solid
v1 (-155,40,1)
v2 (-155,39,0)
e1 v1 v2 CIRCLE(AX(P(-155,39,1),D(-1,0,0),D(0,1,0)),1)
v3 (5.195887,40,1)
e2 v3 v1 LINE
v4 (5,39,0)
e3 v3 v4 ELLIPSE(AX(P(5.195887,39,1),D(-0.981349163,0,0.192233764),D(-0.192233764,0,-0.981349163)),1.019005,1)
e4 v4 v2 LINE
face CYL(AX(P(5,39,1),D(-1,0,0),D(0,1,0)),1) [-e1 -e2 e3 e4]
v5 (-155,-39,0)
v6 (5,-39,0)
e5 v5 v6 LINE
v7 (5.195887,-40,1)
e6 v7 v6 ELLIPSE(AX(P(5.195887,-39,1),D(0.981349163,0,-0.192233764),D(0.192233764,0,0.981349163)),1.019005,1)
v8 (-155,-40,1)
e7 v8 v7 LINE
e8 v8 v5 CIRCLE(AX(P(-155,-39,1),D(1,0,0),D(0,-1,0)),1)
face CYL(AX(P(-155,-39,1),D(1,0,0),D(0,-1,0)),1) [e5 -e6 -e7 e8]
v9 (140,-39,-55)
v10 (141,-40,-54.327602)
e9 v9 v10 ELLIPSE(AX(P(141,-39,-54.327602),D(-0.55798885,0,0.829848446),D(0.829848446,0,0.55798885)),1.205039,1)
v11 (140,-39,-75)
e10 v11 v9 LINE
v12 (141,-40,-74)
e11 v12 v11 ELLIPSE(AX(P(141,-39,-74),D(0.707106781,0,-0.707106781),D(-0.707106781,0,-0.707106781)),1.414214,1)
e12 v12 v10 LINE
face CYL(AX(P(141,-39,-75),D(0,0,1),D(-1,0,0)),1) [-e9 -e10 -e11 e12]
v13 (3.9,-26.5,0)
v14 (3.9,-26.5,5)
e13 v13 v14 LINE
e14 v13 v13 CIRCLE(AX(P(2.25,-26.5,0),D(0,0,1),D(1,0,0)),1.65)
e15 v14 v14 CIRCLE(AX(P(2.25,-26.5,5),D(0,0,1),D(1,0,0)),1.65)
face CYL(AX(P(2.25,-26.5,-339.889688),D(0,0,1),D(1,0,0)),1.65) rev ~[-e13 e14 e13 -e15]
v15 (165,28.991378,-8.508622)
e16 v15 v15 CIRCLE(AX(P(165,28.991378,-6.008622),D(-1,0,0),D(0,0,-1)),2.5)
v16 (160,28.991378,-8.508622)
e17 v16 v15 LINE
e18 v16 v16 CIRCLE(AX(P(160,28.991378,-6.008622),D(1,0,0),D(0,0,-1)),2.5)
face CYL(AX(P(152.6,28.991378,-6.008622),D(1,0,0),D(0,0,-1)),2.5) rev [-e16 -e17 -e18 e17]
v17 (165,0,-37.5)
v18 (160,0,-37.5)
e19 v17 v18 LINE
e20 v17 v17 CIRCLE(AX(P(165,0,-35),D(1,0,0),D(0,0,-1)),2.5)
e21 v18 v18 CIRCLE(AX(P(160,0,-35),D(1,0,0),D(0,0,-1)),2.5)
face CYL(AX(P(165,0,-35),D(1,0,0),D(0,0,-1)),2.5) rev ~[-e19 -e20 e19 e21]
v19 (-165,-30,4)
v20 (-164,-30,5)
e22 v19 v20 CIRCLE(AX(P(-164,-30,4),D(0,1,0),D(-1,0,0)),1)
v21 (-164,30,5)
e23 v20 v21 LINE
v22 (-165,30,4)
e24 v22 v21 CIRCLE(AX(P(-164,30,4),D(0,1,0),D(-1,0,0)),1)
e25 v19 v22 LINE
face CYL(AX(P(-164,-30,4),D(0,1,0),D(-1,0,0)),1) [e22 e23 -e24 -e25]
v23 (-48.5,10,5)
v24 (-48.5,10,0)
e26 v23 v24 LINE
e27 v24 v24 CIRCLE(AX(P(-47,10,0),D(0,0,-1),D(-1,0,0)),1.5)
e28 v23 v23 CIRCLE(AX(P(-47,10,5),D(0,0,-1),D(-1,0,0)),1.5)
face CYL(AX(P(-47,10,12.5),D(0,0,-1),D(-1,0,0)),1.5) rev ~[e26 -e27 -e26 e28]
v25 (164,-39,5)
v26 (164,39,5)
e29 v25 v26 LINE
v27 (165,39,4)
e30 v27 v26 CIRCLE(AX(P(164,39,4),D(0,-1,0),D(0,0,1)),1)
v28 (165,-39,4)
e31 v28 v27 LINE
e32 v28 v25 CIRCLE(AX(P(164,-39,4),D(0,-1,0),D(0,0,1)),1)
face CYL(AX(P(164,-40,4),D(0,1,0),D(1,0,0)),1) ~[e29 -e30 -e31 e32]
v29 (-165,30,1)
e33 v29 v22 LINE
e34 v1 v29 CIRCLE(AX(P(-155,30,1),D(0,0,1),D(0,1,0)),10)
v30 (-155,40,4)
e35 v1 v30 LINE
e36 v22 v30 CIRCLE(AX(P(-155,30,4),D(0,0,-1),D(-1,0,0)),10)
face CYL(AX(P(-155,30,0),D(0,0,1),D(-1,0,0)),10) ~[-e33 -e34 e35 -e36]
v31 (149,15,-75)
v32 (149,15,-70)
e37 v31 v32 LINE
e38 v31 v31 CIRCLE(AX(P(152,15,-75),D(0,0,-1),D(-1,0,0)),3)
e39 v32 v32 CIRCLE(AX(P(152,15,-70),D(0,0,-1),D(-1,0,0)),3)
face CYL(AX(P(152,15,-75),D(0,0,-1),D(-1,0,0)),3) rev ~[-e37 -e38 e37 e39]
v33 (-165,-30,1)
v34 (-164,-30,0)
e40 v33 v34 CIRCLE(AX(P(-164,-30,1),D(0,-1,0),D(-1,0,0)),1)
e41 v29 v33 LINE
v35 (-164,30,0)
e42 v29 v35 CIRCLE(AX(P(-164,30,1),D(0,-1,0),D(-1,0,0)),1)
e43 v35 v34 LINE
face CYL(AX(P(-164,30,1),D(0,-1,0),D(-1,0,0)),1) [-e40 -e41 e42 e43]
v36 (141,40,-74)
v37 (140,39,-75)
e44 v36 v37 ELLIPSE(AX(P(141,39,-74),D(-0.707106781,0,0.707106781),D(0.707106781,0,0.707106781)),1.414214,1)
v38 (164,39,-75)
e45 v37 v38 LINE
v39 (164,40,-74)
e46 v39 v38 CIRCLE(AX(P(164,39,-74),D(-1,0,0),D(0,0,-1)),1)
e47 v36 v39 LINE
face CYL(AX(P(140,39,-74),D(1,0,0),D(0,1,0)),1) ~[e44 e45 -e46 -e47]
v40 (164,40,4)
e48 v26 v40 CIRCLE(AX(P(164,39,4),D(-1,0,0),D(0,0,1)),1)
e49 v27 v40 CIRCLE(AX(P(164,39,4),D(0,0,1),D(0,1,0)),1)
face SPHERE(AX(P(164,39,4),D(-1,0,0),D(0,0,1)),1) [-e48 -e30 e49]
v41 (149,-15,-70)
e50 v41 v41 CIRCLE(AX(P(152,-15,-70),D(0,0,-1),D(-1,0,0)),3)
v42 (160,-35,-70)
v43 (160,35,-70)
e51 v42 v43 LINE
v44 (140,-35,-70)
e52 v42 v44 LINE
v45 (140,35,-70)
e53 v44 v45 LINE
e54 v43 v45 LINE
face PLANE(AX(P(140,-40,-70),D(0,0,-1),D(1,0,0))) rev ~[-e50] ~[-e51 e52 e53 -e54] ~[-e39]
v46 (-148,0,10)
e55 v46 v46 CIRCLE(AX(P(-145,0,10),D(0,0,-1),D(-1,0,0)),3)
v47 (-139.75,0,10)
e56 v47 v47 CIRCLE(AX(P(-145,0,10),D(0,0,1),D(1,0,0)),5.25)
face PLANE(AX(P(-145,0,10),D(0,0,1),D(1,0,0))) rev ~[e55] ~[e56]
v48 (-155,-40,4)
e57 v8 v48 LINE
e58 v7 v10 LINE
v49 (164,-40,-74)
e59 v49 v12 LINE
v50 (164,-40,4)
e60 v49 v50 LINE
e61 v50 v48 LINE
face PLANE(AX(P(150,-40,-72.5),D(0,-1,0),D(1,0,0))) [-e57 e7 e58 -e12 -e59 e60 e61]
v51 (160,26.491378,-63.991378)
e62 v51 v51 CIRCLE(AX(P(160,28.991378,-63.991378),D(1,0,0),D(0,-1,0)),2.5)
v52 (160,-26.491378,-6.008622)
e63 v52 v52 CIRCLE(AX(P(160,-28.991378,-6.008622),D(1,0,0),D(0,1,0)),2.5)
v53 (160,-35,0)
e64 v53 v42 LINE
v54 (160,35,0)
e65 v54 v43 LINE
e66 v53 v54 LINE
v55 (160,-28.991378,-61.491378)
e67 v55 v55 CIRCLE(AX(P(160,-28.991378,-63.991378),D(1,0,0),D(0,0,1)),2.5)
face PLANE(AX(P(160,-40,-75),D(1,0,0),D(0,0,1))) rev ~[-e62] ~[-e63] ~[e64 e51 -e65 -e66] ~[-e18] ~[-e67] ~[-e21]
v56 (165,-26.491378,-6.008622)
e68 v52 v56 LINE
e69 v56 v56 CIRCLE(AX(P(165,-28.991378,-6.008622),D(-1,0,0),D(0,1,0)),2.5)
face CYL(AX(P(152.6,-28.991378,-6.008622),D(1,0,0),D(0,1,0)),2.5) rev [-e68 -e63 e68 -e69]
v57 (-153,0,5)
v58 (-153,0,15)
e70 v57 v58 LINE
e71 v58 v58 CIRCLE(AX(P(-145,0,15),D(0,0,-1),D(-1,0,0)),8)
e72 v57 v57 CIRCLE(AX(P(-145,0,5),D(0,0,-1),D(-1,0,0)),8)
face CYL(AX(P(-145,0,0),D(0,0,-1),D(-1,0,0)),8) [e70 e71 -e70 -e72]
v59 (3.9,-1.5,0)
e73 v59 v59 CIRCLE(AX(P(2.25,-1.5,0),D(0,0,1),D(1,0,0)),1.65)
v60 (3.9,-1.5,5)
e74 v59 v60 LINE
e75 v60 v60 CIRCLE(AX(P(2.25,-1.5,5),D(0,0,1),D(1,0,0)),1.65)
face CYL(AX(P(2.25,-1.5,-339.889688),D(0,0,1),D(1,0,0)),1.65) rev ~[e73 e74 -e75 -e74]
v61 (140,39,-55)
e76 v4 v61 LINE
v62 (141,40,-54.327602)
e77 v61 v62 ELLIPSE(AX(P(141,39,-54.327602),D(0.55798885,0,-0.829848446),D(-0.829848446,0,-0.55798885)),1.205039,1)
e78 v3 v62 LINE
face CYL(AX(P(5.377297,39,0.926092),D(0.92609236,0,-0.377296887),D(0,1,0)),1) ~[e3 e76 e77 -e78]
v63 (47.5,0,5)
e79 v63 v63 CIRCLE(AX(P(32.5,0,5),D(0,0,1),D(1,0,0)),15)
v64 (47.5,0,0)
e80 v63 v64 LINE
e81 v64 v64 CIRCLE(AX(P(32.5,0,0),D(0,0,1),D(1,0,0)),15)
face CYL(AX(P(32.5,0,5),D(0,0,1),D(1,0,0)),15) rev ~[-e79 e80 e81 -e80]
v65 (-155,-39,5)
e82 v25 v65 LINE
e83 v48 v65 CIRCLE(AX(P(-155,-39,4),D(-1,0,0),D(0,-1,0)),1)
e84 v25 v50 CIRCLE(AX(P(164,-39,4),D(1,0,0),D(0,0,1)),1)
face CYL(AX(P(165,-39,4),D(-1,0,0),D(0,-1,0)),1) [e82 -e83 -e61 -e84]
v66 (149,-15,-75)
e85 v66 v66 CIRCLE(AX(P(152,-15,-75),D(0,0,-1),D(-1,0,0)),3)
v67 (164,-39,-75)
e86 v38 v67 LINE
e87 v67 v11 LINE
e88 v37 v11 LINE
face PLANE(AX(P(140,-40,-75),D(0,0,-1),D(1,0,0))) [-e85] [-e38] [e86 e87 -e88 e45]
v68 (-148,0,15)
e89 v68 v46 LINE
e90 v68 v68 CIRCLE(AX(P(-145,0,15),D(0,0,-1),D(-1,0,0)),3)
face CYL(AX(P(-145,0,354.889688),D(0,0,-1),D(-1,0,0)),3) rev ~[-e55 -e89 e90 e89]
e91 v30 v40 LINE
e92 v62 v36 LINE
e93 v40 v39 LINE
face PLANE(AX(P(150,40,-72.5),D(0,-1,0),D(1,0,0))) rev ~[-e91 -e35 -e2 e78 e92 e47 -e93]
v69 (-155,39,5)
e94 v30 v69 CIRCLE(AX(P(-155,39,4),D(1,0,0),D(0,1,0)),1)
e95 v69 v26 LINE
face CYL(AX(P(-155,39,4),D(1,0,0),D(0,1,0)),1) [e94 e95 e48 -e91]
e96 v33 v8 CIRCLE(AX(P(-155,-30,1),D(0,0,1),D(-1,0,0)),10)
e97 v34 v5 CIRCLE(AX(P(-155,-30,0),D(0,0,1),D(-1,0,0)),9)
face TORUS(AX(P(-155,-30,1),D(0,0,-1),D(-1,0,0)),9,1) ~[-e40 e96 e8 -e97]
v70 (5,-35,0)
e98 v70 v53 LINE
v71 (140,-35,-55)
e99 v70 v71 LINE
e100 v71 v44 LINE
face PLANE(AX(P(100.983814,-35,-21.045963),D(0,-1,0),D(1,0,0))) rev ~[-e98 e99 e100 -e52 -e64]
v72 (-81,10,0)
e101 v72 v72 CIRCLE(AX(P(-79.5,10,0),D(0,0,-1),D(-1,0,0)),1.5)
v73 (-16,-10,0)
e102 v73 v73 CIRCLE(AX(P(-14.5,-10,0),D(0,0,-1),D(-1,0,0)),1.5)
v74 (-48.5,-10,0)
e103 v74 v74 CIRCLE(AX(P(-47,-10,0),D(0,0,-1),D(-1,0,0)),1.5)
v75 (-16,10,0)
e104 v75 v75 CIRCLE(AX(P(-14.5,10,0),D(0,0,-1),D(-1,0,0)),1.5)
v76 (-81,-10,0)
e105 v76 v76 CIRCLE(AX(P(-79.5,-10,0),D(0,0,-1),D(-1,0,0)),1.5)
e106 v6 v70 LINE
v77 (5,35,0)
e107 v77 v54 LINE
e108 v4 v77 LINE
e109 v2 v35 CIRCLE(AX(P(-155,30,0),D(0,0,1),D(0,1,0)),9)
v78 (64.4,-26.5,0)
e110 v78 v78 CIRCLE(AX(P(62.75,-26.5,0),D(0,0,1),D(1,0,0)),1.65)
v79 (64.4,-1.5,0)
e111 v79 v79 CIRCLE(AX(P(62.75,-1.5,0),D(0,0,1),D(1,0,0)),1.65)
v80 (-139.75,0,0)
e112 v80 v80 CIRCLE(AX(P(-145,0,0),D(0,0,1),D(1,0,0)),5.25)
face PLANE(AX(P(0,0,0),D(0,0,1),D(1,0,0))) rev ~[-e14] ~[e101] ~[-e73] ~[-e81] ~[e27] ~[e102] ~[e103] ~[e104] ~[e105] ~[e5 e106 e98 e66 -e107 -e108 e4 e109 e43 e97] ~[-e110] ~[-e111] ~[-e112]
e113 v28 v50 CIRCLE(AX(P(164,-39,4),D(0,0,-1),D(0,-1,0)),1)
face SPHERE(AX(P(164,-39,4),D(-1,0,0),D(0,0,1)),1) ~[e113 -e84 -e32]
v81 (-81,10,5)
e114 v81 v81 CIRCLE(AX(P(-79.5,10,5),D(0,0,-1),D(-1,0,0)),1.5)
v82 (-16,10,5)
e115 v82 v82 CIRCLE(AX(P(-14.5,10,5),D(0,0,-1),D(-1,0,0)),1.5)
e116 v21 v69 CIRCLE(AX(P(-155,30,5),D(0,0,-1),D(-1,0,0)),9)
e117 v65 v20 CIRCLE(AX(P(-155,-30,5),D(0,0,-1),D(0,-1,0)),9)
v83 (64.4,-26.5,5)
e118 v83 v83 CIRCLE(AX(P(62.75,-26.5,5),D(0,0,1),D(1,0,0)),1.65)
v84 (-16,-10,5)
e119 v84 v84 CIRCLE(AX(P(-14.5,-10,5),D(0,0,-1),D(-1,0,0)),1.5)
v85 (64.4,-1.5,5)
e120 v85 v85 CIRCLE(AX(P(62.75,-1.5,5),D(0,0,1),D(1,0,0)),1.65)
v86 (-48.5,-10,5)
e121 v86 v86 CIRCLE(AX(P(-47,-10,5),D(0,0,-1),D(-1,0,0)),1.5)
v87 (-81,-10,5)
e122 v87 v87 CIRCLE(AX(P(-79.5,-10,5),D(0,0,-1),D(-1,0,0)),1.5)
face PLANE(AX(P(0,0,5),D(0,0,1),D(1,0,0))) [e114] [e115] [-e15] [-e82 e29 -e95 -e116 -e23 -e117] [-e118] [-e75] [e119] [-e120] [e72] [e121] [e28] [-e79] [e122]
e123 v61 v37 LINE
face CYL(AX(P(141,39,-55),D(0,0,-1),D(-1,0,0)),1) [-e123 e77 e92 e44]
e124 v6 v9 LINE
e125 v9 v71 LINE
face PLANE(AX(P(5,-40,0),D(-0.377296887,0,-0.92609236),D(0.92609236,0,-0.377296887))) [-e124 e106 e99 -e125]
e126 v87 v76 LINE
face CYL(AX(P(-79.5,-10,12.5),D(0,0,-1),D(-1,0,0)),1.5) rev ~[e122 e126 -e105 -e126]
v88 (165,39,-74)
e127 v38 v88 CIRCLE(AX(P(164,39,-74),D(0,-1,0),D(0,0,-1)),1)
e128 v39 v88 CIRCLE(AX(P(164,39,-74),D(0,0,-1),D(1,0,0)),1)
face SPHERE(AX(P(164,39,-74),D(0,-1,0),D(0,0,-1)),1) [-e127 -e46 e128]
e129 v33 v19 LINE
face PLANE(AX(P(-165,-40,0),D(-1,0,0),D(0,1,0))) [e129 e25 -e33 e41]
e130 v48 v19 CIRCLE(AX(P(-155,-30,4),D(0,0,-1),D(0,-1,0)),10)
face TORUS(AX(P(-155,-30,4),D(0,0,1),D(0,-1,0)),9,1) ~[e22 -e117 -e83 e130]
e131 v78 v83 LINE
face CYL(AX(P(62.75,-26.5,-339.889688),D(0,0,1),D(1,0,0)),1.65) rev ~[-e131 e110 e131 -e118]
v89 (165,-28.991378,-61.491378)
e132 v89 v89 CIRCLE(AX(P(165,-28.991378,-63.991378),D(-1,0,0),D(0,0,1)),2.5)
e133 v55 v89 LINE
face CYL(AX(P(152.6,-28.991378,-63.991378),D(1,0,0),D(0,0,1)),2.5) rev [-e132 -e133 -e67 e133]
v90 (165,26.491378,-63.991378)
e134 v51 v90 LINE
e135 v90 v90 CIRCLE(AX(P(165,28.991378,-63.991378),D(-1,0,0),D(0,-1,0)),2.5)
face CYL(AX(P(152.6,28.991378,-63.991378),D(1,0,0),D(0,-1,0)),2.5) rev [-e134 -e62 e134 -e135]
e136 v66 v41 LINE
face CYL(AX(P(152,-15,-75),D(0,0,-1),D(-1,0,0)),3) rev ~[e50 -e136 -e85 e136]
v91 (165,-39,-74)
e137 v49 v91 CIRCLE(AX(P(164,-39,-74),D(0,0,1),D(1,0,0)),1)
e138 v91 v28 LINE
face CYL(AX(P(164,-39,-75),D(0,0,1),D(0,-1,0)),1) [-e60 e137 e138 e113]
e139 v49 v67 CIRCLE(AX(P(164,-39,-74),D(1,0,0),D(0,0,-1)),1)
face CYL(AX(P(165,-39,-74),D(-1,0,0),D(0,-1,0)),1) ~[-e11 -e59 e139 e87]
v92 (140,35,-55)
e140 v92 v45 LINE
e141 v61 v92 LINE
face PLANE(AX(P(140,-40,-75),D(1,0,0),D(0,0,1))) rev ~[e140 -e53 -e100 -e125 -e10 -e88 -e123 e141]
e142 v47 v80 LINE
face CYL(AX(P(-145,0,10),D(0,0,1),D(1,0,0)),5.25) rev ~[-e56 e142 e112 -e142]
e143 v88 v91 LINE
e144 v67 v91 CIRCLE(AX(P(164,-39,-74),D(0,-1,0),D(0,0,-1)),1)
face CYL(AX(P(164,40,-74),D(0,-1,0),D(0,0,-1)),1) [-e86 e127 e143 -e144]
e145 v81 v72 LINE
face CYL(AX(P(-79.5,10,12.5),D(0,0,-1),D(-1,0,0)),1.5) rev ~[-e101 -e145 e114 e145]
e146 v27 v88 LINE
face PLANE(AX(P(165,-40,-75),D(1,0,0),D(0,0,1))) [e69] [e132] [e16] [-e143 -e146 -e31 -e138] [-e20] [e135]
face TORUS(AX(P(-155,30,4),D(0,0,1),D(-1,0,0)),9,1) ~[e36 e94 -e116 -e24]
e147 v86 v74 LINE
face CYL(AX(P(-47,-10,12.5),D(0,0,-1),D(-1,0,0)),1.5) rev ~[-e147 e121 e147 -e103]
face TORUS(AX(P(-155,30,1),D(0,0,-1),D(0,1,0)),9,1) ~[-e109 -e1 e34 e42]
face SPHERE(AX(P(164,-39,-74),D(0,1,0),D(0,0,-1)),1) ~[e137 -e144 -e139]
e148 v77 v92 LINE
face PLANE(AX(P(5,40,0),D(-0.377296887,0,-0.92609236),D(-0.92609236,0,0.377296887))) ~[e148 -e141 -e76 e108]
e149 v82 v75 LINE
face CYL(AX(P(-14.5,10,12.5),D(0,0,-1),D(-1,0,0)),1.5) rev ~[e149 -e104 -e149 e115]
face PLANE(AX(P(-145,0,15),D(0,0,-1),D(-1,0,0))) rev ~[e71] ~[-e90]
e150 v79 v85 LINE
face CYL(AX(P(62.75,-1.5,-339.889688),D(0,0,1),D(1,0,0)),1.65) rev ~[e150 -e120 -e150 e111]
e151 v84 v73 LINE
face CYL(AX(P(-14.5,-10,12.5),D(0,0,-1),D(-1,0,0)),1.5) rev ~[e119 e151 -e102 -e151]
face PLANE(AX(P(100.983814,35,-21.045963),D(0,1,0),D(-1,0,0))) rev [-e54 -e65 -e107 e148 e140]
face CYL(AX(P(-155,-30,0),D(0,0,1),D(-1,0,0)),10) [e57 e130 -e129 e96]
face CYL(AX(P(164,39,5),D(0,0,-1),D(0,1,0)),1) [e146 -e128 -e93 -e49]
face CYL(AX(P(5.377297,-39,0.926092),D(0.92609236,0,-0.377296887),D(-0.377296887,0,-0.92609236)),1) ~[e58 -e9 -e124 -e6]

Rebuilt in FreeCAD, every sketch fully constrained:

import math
import FreeCAD as App
import Part
import Sketcher

V = App.Vector
Q = App.Units.Quantity


def edges_at(feature, points):
    """Names of the edges that pass closest to the given points."""
    edges = feature.Shape.Edges
    near = lambda p: min(range(len(edges)), key=lambda i: edges[i].distToShape(Part.Vertex(*p))[0])
    return sorted({f"Edge{near(p) + 1}" for p in points})


def add_polygon(sketch, points):
    """Adds a closed chain of lines whose ends are joined by coincident constraints."""
    first, n = sketch.GeometryCount, len(points)
    for a, b in zip(points, points[1:] + points[:1]):
        sketch.addGeometry(Part.LineSegment(App.Vector(*a, 0), App.Vector(*b, 0)), False)
    for i in range(n):
        sketch.addConstraint(Sketcher.Constraint("Coincident", first + i, 2, first + (i + 1) % n, 1))

doc = App.newDocument("Part")
body = doc.addObject("PartDesign::Body", "Body")

# Sketch on XY plane
sketch1 = body.newObject("Sketcher::SketchObject", "Sketch")
sketch1.AttachmentSupport = (doc.getObject("XY_Plane"), [""])
sketch1.MapMode = "FlatFace"
add_polygon(sketch1, [(-165, 40), (-165, -40), (165, -40), (165, 40)])  # lines 0-3
sketch1.addConstraint(Sketcher.Constraint("Vertical", 0))
sketch1.addConstraint(Sketcher.Constraint("Horizontal", 1))
sketch1.addConstraint(Sketcher.Constraint("Vertical", 2))
sketch1.addConstraint(Sketcher.Constraint("Horizontal", 3))
sketch1.addConstraint(Sketcher.Constraint("Symmetric", 0, 2, 2, 2, -1, 1))
sketch1.addConstraint(Sketcher.Constraint("DistanceX", 1, 1, 1, 2, Q("330 mm")))
sketch1.addConstraint(Sketcher.Constraint("DistanceY", 0, 2, 0, 1, Q("80 mm")))
pad1 = body.newObject("PartDesign::Pad", "Pad")
pad1.Profile = sketch1
pad1.Length = 5

# Sketch on XY plane
sketch2 = body.newObject("Sketcher::SketchObject", "Sketch001")
sketch2.AttachmentSupport = (doc.getObject("XY_Plane"), [""])
sketch2.MapMode = "FlatFace"
sketch2.AttachmentOffset = App.Placement(V(0, 0, 5), App.Rotation())
sketch2.addGeometry(Part.Circle(V(-145, 0, 0), V(0, 0, 1), 5), False)
sketch2.addConstraint(Sketcher.Constraint("PointOnObject", 0, 3, -1))
sketch2.addConstraint(Sketcher.Constraint("Diameter", 0, Q("10 mm")))
sketch2.addConstraint(Sketcher.Constraint("DistanceX", 0, 3, -1, 1, Q("145 mm")))
pocket1 = body.newObject("PartDesign::Pocket", "Pocket")
pocket1.Profile = sketch2
pocket1.Length = 5

# Sketch on XY plane
sketch3 = body.newObject("Sketcher::SketchObject", "Sketch002")
sketch3.AttachmentSupport = (doc.getObject("XY_Plane"), [""])
sketch3.MapMode = "FlatFace"
sketch3.AttachmentOffset = App.Placement(V(0, 0, 5), App.Rotation())
sketch3.addGeometry(Part.Circle(V(-45, 0, 0), V(0, 0, 1), 4), False)
sketch3.addConstraint(Sketcher.Constraint("PointOnObject", 0, 3, -1))
sketch3.addConstraint(Sketcher.Constraint("Diameter", 0, Q("8 mm")))
sketch3.addConstraint(Sketcher.Constraint("DistanceX", 0, 3, -1, 1, Q("45 mm")))
pocket2 = body.newObject("PartDesign::Pocket", "Pocket001")
pocket2.Profile = sketch3
pocket2.Length = 10

# Sketch on XY plane
sketch4 = body.newObject("Sketcher::SketchObject", "Sketch003")
sketch4.AttachmentSupport = (doc.getObject("XY_Plane"), [""])
sketch4.MapMode = "FlatFace"
sketch4.AttachmentOffset = App.Placement(V(0, 0, 5), App.Rotation())
add_polygon(sketch4, [(-91, 10), (-91, -10), (-3, -10), (-3, 10)])  # lines 0-3
sketch4.addConstraint(Sketcher.Constraint("Vertical", 0))
sketch4.addConstraint(Sketcher.Constraint("Horizontal", 1))
sketch4.addConstraint(Sketcher.Constraint("Vertical", 2))
sketch4.addConstraint(Sketcher.Constraint("Horizontal", 3))
sketch4.addConstraint(Sketcher.Constraint("DistanceX", 1, 1, 1, 2, Q("88 mm")))
sketch4.addConstraint(Sketcher.Constraint("DistanceY", 0, 2, 0, 1, Q("20 mm")))
sketch4.addConstraint(Sketcher.Constraint("DistanceX", 0, 2, -1, 1, Q("91 mm")))
sketch4.addConstraint(Sketcher.Constraint("DistanceY", 0, 2, -1, 1, Q("10 mm")))
pad2 = body.newObject("PartDesign::Pad", "Pad001")
pad2.Profile = sketch4
pad2.Length = 10

# Sketch on XY plane
sketch5 = body.newObject("Sketcher::SketchObject", "Sketch004")
sketch5.AttachmentSupport = (doc.getObject("XY_Plane"), [""])
sketch5.MapMode = "FlatFace"
sketch5.AttachmentOffset = App.Placement(V(0, 0, 5), App.Rotation())
sketch5.addGeometry(Part.Circle(V(32, 0, 0), V(0, 0, 1), 15), False)
sketch5.addConstraint(Sketcher.Constraint("PointOnObject", 0, 3, -1))
sketch5.addConstraint(Sketcher.Constraint("Diameter", 0, Q("30 mm")))
sketch5.addConstraint(Sketcher.Constraint("DistanceX", -1, 1, 0, 3, Q("32.5 mm")))
pocket3 = body.newObject("PartDesign::Pocket", "Pocket002")
pocket3.Profile = sketch5
pocket3.Length = 10

# Sketch on XY plane
sketch6 = body.newObject("Sketcher::SketchObject", "Sketch005")
sketch6.AttachmentSupport = (doc.getObject("XY_Plane"), [""])
sketch6.MapMode = "FlatFace"
sketch6.addGeometry(Part.Circle(V(-145, 0, 0), V(0, 0, 1), 8), False)
sketch6.addConstraint(Sketcher.Constraint("PointOnObject", 0, 3, -1))
sketch6.addConstraint(Sketcher.Constraint("Diameter", 0, Q("16 mm")))
sketch6.addConstraint(Sketcher.Constraint("DistanceX", 0, 3, -1, 1, Q("145 mm")))
pad3 = body.newObject("PartDesign::Pad", "Pad002")
pad3.Profile = sketch6
pad3.Length = 15

# Sketch on XY plane
sketch7 = body.newObject("Sketcher::SketchObject", "Sketch006")
sketch7.AttachmentSupport = (doc.getObject("XY_Plane"), [""])
sketch7.MapMode = "FlatFace"
sketch7.AttachmentOffset = App.Placement(V(0, 0, 15), App.Rotation())
sketch7.addGeometry(Part.Circle(V(-145, 0, 0), V(0, 0, 1), 3), False)
sketch7.addConstraint(Sketcher.Constraint("PointOnObject", 0, 3, -1))
sketch7.addConstraint(Sketcher.Constraint("Diameter", 0, Q("6 mm")))
sketch7.addConstraint(Sketcher.Constraint("DistanceX", 0, 3, -1, 1, Q("145 mm")))
doc.recompute()
hole = body.newObject("PartDesign::Hole", "Hole")
hole.Profile = sketch7
hole.ThreadType = "None"
hole.Diameter = 6
hole.DepthType = "ThroughAll"

# Sketch on XY plane
sketch8 = body.newObject("Sketcher::SketchObject", "Sketch007")
sketch8.AttachmentSupport = (doc.getObject("XY_Plane"), [""])
sketch8.MapMode = "FlatFace"
sketch8.AttachmentOffset = App.Placement(V(0, 0, 15), App.Rotation())
sketch8.addGeometry(Part.LineSegment(V(-3, 5, 0), V(-91, 5, 0)), False)
sketch8.addGeometry(Part.ArcOfCircle(Part.Circle(V(-91, 0, 0), V(0, 0, 1), 5), math.radians(90), math.radians(270)), False)
sketch8.addGeometry(Part.LineSegment(V(-91, -5, 0), V(-3, -5, 0)), False)
sketch8.addGeometry(Part.ArcOfCircle(Part.Circle(V(-3, 0, 0), V(0, 0, 1), 5), math.radians(-90), math.radians(90)), False)
sketch8.addConstraint(Sketcher.Constraint("Tangent", 0, 2, 1, 1))
sketch8.addConstraint(Sketcher.Constraint("Tangent", 1, 2, 2, 1))
sketch8.addConstraint(Sketcher.Constraint("Tangent", 2, 2, 3, 1))
sketch8.addConstraint(Sketcher.Constraint("Tangent", 3, 2, 0, 1))
sketch8.addConstraint(Sketcher.Constraint("Horizontal", 0))
sketch8.addConstraint(Sketcher.Constraint("Horizontal", 2))
sketch8.addConstraint(Sketcher.Constraint("PointOnObject", 1, 3, -1))
sketch8.addConstraint(Sketcher.Constraint("Radius", 1, Q("5.1 mm")))
sketch8.addConstraint(Sketcher.Constraint("DistanceX", 0, 2, 0, 1, Q("88 mm")))
sketch8.addConstraint(Sketcher.Constraint("DistanceX", 1, 3, -1, 1, Q("91 mm")))
pocket4 = body.newObject("PartDesign::Pocket", "Pocket003")
pocket4.Profile = sketch8
pocket4.Length = 7

# Sketch on XY plane
sketch9 = body.newObject("Sketcher::SketchObject", "Sketch008")
sketch9.AttachmentSupport = (doc.getObject("XY_Plane"), [""])
sketch9.MapMode = "FlatFace"
sketch9.addGeometry(Part.Circle(V(2.2, -26.5, 0), V(0, 0, 1), 1.6), False)
sketch9.addGeometry(Part.Circle(V(2.2, -1.5, 0), V(0, 0, 1), 1.6), False)
sketch9.addGeometry(Part.Circle(V(62.8, -26.5, 0), V(0, 0, 1), 1.6), False)
sketch9.addGeometry(Part.Circle(V(62.8, -1.5, 0), V(0, 0, 1), 1.6), False)
sketch9.addConstraint(Sketcher.Constraint("Equal", 0, 1))
sketch9.addConstraint(Sketcher.Constraint("Equal", 1, 2))
sketch9.addConstraint(Sketcher.Constraint("Equal", 2, 3))
sketch9.addConstraint(Sketcher.Constraint("Horizontal", 0, 3, 2, 3))
sketch9.addConstraint(Sketcher.Constraint("Horizontal", 1, 3, 3, 3))
sketch9.addConstraint(Sketcher.Constraint("Vertical", 0, 3, 1, 3))
sketch9.addConstraint(Sketcher.Constraint("Vertical", 2, 3, 3, 3))
sketch9.addConstraint(Sketcher.Constraint("Diameter", 0, Q("3.3 mm")))
sketch9.addConstraint(Sketcher.Constraint("DistanceY", 0, 3, 1, 3, Q("25 mm")))
sketch9.addConstraint(Sketcher.Constraint("DistanceY", 0, 3, -1, 1, Q("26.5 mm")))
sketch9.addConstraint(Sketcher.Constraint("DistanceX", 0, 3, 2, 3, Q("60.5 mm")))
sketch9.addConstraint(Sketcher.Constraint("DistanceX", -1, 1, 0, 3, Q("2.25 mm")))
doc.recompute()
hole2 = body.newObject("PartDesign::Hole", "Hole001")
hole2.Profile = sketch9
hole2.ThreadType = "None"
hole2.Diameter = 3.3
hole2.DepthType = "ThroughAll"
hole2.Reversed = True
doc.recompute()

fillet = body.newObject("PartDesign::Fillet", "Fillet")
fillet.Base = (hole2, edges_at(hole2, [(-165, 40, 2.5), (-165, -40, 2.5)]))
fillet.Radius = 10

# Sketch on XY plane
sketch10 = body.newObject("Sketcher::SketchObject", "Sketch009")
sketch10.AttachmentSupport = (doc.getObject("XY_Plane"), [""])
sketch10.MapMode = "FlatFace"
sketch10.AttachmentOffset = App.Placement(V(0, 0, 5), App.Rotation())
sketch10.addGeometry(Part.Circle(V(-45, 0, 0), V(0, 0, 1), 7), False)
sketch10.addConstraint(Sketcher.Constraint("PointOnObject", 0, 3, -1))
sketch10.addConstraint(Sketcher.Constraint("DistanceX", 0, 3, -1, 1, Q("45 mm")))
sketch10.addConstraint(Sketcher.Constraint("Diameter", 0, Q("13.93877 mm")))
pad4 = body.newObject("PartDesign::Pad", "Pad003")
pad4.Profile = sketch10
pad4.Length = 5
pad4.Reversed = True

# Sketch on XZ plane
sketch11 = body.newObject("Sketcher::SketchObject", "Sketch010")
sketch11.AttachmentSupport = (doc.getObject("XZ_Plane"), [""])
sketch11.MapMode = "FlatFace"
sketch11.AttachmentOffset = App.Placement(V(0, 0, 40), App.Rotation())
add_polygon(sketch11, [(160, 0), (160, -75), (165, -75), (165, 0)])  # lines 0-3
sketch11.addConstraint(Sketcher.Constraint("Vertical", 0))
sketch11.addConstraint(Sketcher.Constraint("Horizontal", 1))
sketch11.addConstraint(Sketcher.Constraint("Vertical", 2))
sketch11.addConstraint(Sketcher.Constraint("Horizontal", 3))
sketch11.addConstraint(Sketcher.Constraint("PointOnObject", 2, 2, -1))
sketch11.addConstraint(Sketcher.Constraint("DistanceX", 1, 1, 1, 2, Q("5 mm")))
sketch11.addConstraint(Sketcher.Constraint("DistanceY", 0, 2, 0, 1, Q("75 mm")))
sketch11.addConstraint(Sketcher.Constraint("DistanceX", -1, 1, 0, 2, Q("160 mm")))
pad5 = body.newObject("PartDesign::Pad", "Pad004")
pad5.Profile = sketch11
pad5.Length = 80
pad5.Reversed = True

# Sketch on XZ plane
sketch12 = body.newObject("Sketcher::SketchObject", "Sketch011")
sketch12.AttachmentSupport = (doc.getObject("XZ_Plane"), [""])
sketch12.MapMode = "FlatFace"
sketch12.AttachmentOffset = App.Placement(V(0, 0, 40), App.Rotation())
add_polygon(sketch12, [(140, -70), (140, -75), (160, -75), (160, -70)])  # lines 0-3
sketch12.addConstraint(Sketcher.Constraint("Vertical", 0))
sketch12.addConstraint(Sketcher.Constraint("Horizontal", 1))
sketch12.addConstraint(Sketcher.Constraint("Vertical", 2))
sketch12.addConstraint(Sketcher.Constraint("Horizontal", 3))
sketch12.addConstraint(Sketcher.Constraint("DistanceX", 1, 1, 1, 2, Q("20 mm")))
sketch12.addConstraint(Sketcher.Constraint("DistanceY", 0, 2, 0, 1, Q("5 mm")))
sketch12.addConstraint(Sketcher.Constraint("DistanceX", -1, 1, 0, 2, Q("140 mm")))
sketch12.addConstraint(Sketcher.Constraint("DistanceY", 0, 2, -1, 1, Q("75 mm")))
pad6 = body.newObject("PartDesign::Pad", "Pad005")
pad6.Profile = sketch12
pad6.Length = 80
pad6.Reversed = True

# Sketch on XZ plane
sketch13 = body.newObject("Sketcher::SketchObject", "Sketch012")
sketch13.AttachmentSupport = (doc.getObject("XZ_Plane"), [""])
sketch13.MapMode = "FlatFace"
sketch13.AttachmentOffset = App.Placement(V(0, 0, 40), App.Rotation())
add_polygon(sketch13, [(5, 5), (5, 0), (140, -55), (140, -75), (165, -75), (165, 5)])  # lines 0-5
sketch13.addConstraint(Sketcher.Constraint("Vertical", 0))
sketch13.addConstraint(Sketcher.Constraint("Vertical", 2))
sketch13.addConstraint(Sketcher.Constraint("Horizontal", 3))
sketch13.addConstraint(Sketcher.Constraint("Vertical", 4))
sketch13.addConstraint(Sketcher.Constraint("Horizontal", 5))
sketch13.addConstraint(Sketcher.Constraint("PointOnObject", 0, 2, -1))
sketch13.addConstraint(Sketcher.Constraint("DistanceX", 3, 1, 3, 2, Q("25 mm")))
sketch13.addConstraint(Sketcher.Constraint("DistanceX", 5, 2, 5, 1, Q("160 mm")))
sketch13.addConstraint(Sketcher.Constraint("DistanceY", 0, 2, 0, 1, Q("5 mm")))
sketch13.addConstraint(Sketcher.Constraint("DistanceY", 2, 2, 2, 1, Q("20 mm")))
sketch13.addConstraint(Sketcher.Constraint("DistanceY", 4, 1, 4, 2, Q("80 mm")))
sketch13.addConstraint(Sketcher.Constraint("DistanceX", -1, 1, 0, 2, Q("5 mm")))
pad7 = body.newObject("PartDesign::Pad", "Pad006")
pad7.Profile = sketch13
pad7.Length = 5
pad7.Reversed = True
doc.recompute()

mirrored = body.newObject("PartDesign::Mirrored", "Mirrored")
mirrored.Originals = [pad7]
mirrored.MirrorPlane = (doc.getObject("XZ_Plane"), [""])
body.Tip = mirrored

# Sketch on XY plane
sketch14 = body.newObject("Sketcher::SketchObject", "Sketch013")
sketch14.AttachmentSupport = (doc.getObject("XY_Plane"), [""])
sketch14.MapMode = "FlatFace"
sketch14.AttachmentOffset = App.Placement(V(0, 0, -75), App.Rotation())
sketch14.addGeometry(Part.Circle(V(152, -15, 0), V(0, 0, 1), 3), False)
sketch14.addGeometry(Part.Circle(V(152, 15, 0), V(0, 0, 1), 3), False)
sketch14.addConstraint(Sketcher.Constraint("Equal", 0, 1))
sketch14.addConstraint(Sketcher.Constraint("Symmetric", 0, 3, 1, 3, -1))
sketch14.addConstraint(Sketcher.Constraint("Diameter", 0, Q("6 mm")))
sketch14.addConstraint(Sketcher.Constraint("DistanceX", -1, 1, 0, 3, Q("152 mm")))
sketch14.addConstraint(Sketcher.Constraint("DistanceY", 0, 3, -1, 1, Q("15 mm")))
pocket5 = body.newObject("PartDesign::Pocket", "Pocket004")
pocket5.Profile = sketch14
pocket5.Length = 5
pocket5.Reversed = True
doc.recompute()

fillet2 = body.newObject("PartDesign::Fillet", "Fillet001")
fillet2.Base = (pocket5, edges_at(pocket5, [
    (-75, -40, 0),
    (5, -40, 5),
    (-165, 0, 0),
    (-162.071, 37.071, 0),
    (-162.071, -37.071, 0),
    (-165, 0, 5),
    (-162.071, 37.071, 5),
    (-162.071, -37.071, 5),
    (165, 0, -75),
    (165, 0, 5),
    (152.5, -40, -75),
    (152.5, 40, -75),
    (140, -40, -65),
    (140, 40, -65),
    (72.5, -40, -27.5),
    (5, 40, 5),
    (-75, 40, 0),
    (72.5, 40, -27.5),
    (165, 40, -35),
    (165, -40, -35),
]))
fillet2.Radius = 1
doc.recompute()

fillet3 = body.newObject("PartDesign::Fillet", "Fillet002")
fillet3.Base = (fillet2, edges_at(fillet2, [
    (-47, -10, 15),
    (-47, 10, 15),
    (-47, 5.1, 15),
    (-47, -5.1, 15),
]))
fillet3.Radius = 1

# Sketch on YZ plane
sketch15 = body.newObject("Sketcher::SketchObject", "Sketch014")
sketch15.AttachmentSupport = (doc.getObject("YZ_Plane"), [""])
sketch15.MapMode = "FlatFace"
sketch15.AttachmentOffset = App.Placement(V(0, 0, -3), App.Rotation())
sketch15.addGeometry(Part.LineSegment(V(-6.1, 15, 0), V(-9, 15, 0)), False)
sketch15.addGeometry(Part.ArcOfCircle(Part.Circle(V(-9, 14, 0), V(0, 0, 1), 1), math.radians(90), math.radians(180)), False)
sketch15.addGeometry(Part.LineSegment(V(-10, 14, 0), V(-10, 5, 0)), False)
sketch15.addGeometry(Part.LineSegment(V(-10, 5, 0), V(10, 5, 0)), False)
sketch15.addGeometry(Part.LineSegment(V(10, 5, 0), V(10, 14, 0)), False)
sketch15.addGeometry(Part.ArcOfCircle(Part.Circle(V(9, 14, 0), V(0, 0, 1), 1), math.radians(0), math.radians(90)), False)
sketch15.addGeometry(Part.LineSegment(V(9, 15, 0), V(6.1, 15, 0)), False)
sketch15.addGeometry(Part.ArcOfCircle(Part.Circle(V(6.1, 14, 0), V(0, 0, 1), 1), math.radians(90), math.radians(180)), False)
sketch15.addGeometry(Part.LineSegment(V(5.1, 14, 0), V(5.1, 8, 0)), False)
sketch15.addGeometry(Part.LineSegment(V(5.1, 8, 0), V(-5.1, 8, 0)), False)
sketch15.addGeometry(Part.LineSegment(V(-5.1, 8, 0), V(-5.1, 14, 0)), False)
sketch15.addGeometry(Part.ArcOfCircle(Part.Circle(V(-6.1, 14, 0), V(0, 0, 1), 1), math.radians(0), math.radians(90)), False)
sketch15.addConstraint(Sketcher.Constraint("Tangent", 0, 2, 1, 1))
sketch15.addConstraint(Sketcher.Constraint("Tangent", 1, 2, 2, 1))
sketch15.addConstraint(Sketcher.Constraint("Coincident", 2, 2, 3, 1))
sketch15.addConstraint(Sketcher.Constraint("Coincident", 3, 2, 4, 1))
sketch15.addConstraint(Sketcher.Constraint("Tangent", 4, 2, 5, 1))
sketch15.addConstraint(Sketcher.Constraint("Tangent", 5, 2, 6, 1))
sketch15.addConstraint(Sketcher.Constraint("Tangent", 6, 2, 7, 1))
sketch15.addConstraint(Sketcher.Constraint("Tangent", 7, 2, 8, 1))
sketch15.addConstraint(Sketcher.Constraint("Coincident", 8, 2, 9, 1))
sketch15.addConstraint(Sketcher.Constraint("Coincident", 9, 2, 10, 1))
sketch15.addConstraint(Sketcher.Constraint("Tangent", 10, 2, 11, 1))
sketch15.addConstraint(Sketcher.Constraint("Tangent", 11, 2, 0, 1))
sketch15.addConstraint(Sketcher.Constraint("Horizontal", 0))
sketch15.addConstraint(Sketcher.Constraint("Vertical", 2))
sketch15.addConstraint(Sketcher.Constraint("Horizontal", 3))
sketch15.addConstraint(Sketcher.Constraint("Vertical", 4))
sketch15.addConstraint(Sketcher.Constraint("Horizontal", 6))
sketch15.addConstraint(Sketcher.Constraint("Vertical", 8))
sketch15.addConstraint(Sketcher.Constraint("Horizontal", 9))
sketch15.addConstraint(Sketcher.Constraint("Vertical", 10))
sketch15.addConstraint(Sketcher.Constraint("Equal", 1, 5))
sketch15.addConstraint(Sketcher.Constraint("Equal", 5, 7))
sketch15.addConstraint(Sketcher.Constraint("Equal", 7, 11))
sketch15.addConstraint(Sketcher.Constraint("Symmetric", 1, 3, 5, 3, -2))
sketch15.addConstraint(Sketcher.Constraint("Equal", 0, 6))
sketch15.addConstraint(Sketcher.Constraint("Radius", 1, Q("1 mm")))
sketch15.addConstraint(Sketcher.Constraint("DistanceX", 3, 1, 3, 2, Q("20 mm")))
sketch15.addConstraint(Sketcher.Constraint("DistanceY", 2, 2, 2, 1, Q("9 mm")))
sketch15.addConstraint(Sketcher.Constraint("DistanceY", 8, 2, 8, 1, Q("6 mm")))
sketch15.addConstraint(Sketcher.Constraint("DistanceX", 0, 2, 0, 1, Q("2.9 mm")))
sketch15.addConstraint(Sketcher.Constraint("DistanceY", -1, 1, 1, 3, Q("14 mm")))
pocket6 = body.newObject("PartDesign::Pocket", "Pocket005")
pocket6.Profile = sketch15
pocket6.Length = 100

# Sketch on XY plane
sketch16 = body.newObject("Sketcher::SketchObject", "Sketch015")
sketch16.AttachmentSupport = (doc.getObject("XY_Plane"), [""])
sketch16.MapMode = "FlatFace"
sketch16.AttachmentOffset = App.Placement(V(0, 0, 5), App.Rotation())
sketch16.addGeometry(Part.Circle(V(-14.5, -10, 0), V(0, 0, 1), 1.5), False)
sketch16.addGeometry(Part.Circle(V(-14.5, 10, 0), V(0, 0, 1), 1.5), False)
sketch16.addGeometry(Part.Circle(V(-47, 10, 0), V(0, 0, 1), 1.5), False)
sketch16.addGeometry(Part.Circle(V(-47, -10, 0), V(0, 0, 1), 1.5), False)
sketch16.addGeometry(Part.Circle(V(-79.5, -10, 0), V(0, 0, 1), 1.5), False)
sketch16.addGeometry(Part.Circle(V(-79.5, 10, 0), V(0, 0, 1), 1.5), False)
sketch16.addConstraint(Sketcher.Constraint("Equal", 0, 1))
sketch16.addConstraint(Sketcher.Constraint("Equal", 1, 2))
sketch16.addConstraint(Sketcher.Constraint("Equal", 2, 3))
sketch16.addConstraint(Sketcher.Constraint("Equal", 3, 4))
sketch16.addConstraint(Sketcher.Constraint("Equal", 4, 5))
sketch16.addConstraint(Sketcher.Constraint("Symmetric", 0, 3, 1, 3, -1))
sketch16.addConstraint(Sketcher.Constraint("Symmetric", 2, 3, 3, 3, -1))
sketch16.addConstraint(Sketcher.Constraint("Symmetric", 4, 3, 5, 3, -1))
sketch16.addConstraint(Sketcher.Constraint("Horizontal", 1, 3, 2, 3))
sketch16.addConstraint(Sketcher.Constraint("Horizontal", 3, 3, 4, 3))
sketch16.addConstraint(Sketcher.Constraint("Diameter", 0, Q("3 mm")))
sketch16.addConstraint(Sketcher.Constraint("DistanceY", 0, 3, -1, 1, Q("10 mm")))
sketch16.addConstraint(Sketcher.Constraint("DistanceX", 2, 3, -1, 1, Q("47 mm")))
sketch16.addConstraint(Sketcher.Constraint("DistanceX", 4, 3, 0, 3, Q("65 mm")))
sketch16.addConstraint(Sketcher.Constraint("DistanceX", 0, 3, -1, 1, Q("14.5 mm")))
doc.recompute()
hole3 = body.newObject("PartDesign::Hole", "Hole002")
hole3.Profile = sketch16
hole3.ThreadType = "None"
hole3.Diameter = 3
hole3.DepthType = "Dimension"
hole3.Depth = 7.5
hole3.DrillPoint = "Angled"
hole3.DrillPointAngle = 118

# Sketch on YZ plane
sketch17 = body.newObject("Sketcher::SketchObject", "Sketch016")
sketch17.AttachmentSupport = (doc.getObject("YZ_Plane"), [""])
sketch17.MapMode = "FlatFace"
sketch17.AttachmentOffset = App.Placement(V(0, 0, 165), App.Rotation())
sketch17.addGeometry(Part.Circle(V(0, -35, 0), V(0, 0, 1), 2.5), False)
sketch17.addConstraint(Sketcher.Constraint("PointOnObject", 0, 3, -2))
sketch17.addConstraint(Sketcher.Constraint("Diameter", 0, Q("5 mm")))
sketch17.addConstraint(Sketcher.Constraint("DistanceY", 0, 3, -1, 1, Q("35 mm")))
pocket7 = body.newObject("PartDesign::Pocket", "Pocket006")
pocket7.Profile = sketch17
pocket7.Length = 10

# Sketch on XZ plane
sketch18 = body.newObject("Sketcher::SketchObject", "Sketch017")
sketch18.AttachmentSupport = (doc.getObject("XZ_Plane"), [""])
sketch18.MapMode = "FlatFace"
sketch18.AttachmentOffset = App.Placement(V(0, 0, -28.991378), App.Rotation())
add_polygon(sketch18, [(151.1, -6), (165, -6), (165, -8.5), (152.6, -8.5)])  # lines 0-3
sketch18.addGeometry(Part.LineSegment(V(165, -6, 0), V(151.1, -6, 0)), True)  # axis
sketch18.addConstraint(Sketcher.Constraint("Horizontal", 0))
sketch18.addConstraint(Sketcher.Constraint("Vertical", 1))
sketch18.addConstraint(Sketcher.Constraint("Horizontal", 2))
sketch18.addConstraint(Sketcher.Constraint("Horizontal", 4))
sketch18.addConstraint(Sketcher.Constraint("Coincident", 4, 1, 0, 2))
sketch18.addConstraint(Sketcher.Constraint("Equal", 0, 4))
sketch18.addConstraint(Sketcher.Constraint("Angle", 3, Q("121 deg")))
sketch18.addConstraint(Sketcher.Constraint("DistanceX", 2, 2, 2, 1, Q("12.4 mm")))
sketch18.addConstraint(Sketcher.Constraint("DistanceY", 1, 2, 1, 1, Q("2.5 mm")))
sketch18.addConstraint(Sketcher.Constraint("DistanceX", -1, 1, 0, 2, Q("165 mm")))
sketch18.addConstraint(Sketcher.Constraint("DistanceY", 0, 2, -1, 1, Q("6.008622 mm")))
groove = body.newObject("PartDesign::Groove", "Groove")
groove.Profile = sketch18
groove.ReferenceAxis = (sketch18, ["Axis0"])
groove.Angle = 360
doc.recompute()

datumline = body.newObject("PartDesign::Line", "DatumLine")
datumline.Placement = App.Placement(V(0, 0, -35), App.Rotation(V(0, 0, 1), V(1, 0, 0)))
polarpattern = body.newObject("PartDesign::PolarPattern", "PolarPattern")
polarpattern.Originals = [groove]
polarpattern.Axis = (datumline, [""])
polarpattern.Angle = 360
polarpattern.Occurrences = 4
body.Tip = polarpattern

# Sketch on XY plane
sketch19 = body.newObject("Sketcher::SketchObject", "Sketch018")
sketch19.AttachmentSupport = (doc.getObject("XY_Plane"), [""])
sketch19.MapMode = "FlatFace"
sketch19.AttachmentOffset = App.Placement(V(0, 0, 10), App.Rotation())
sketch19.addGeometry(Part.Circle(V(-145, 0, 0), V(0, 0, 1), 5), False)
sketch19.addConstraint(Sketcher.Constraint("PointOnObject", 0, 3, -1))
sketch19.addConstraint(Sketcher.Constraint("Diameter", 0, Q("10.5 mm")))
sketch19.addConstraint(Sketcher.Constraint("DistanceX", 0, 3, -1, 1, Q("145 mm")))
pocket8 = body.newObject("PartDesign::Pocket", "Pocket007")
pocket8.Profile = sketch19
pocket8.Type = "ThroughAll"

doc.recompute()
